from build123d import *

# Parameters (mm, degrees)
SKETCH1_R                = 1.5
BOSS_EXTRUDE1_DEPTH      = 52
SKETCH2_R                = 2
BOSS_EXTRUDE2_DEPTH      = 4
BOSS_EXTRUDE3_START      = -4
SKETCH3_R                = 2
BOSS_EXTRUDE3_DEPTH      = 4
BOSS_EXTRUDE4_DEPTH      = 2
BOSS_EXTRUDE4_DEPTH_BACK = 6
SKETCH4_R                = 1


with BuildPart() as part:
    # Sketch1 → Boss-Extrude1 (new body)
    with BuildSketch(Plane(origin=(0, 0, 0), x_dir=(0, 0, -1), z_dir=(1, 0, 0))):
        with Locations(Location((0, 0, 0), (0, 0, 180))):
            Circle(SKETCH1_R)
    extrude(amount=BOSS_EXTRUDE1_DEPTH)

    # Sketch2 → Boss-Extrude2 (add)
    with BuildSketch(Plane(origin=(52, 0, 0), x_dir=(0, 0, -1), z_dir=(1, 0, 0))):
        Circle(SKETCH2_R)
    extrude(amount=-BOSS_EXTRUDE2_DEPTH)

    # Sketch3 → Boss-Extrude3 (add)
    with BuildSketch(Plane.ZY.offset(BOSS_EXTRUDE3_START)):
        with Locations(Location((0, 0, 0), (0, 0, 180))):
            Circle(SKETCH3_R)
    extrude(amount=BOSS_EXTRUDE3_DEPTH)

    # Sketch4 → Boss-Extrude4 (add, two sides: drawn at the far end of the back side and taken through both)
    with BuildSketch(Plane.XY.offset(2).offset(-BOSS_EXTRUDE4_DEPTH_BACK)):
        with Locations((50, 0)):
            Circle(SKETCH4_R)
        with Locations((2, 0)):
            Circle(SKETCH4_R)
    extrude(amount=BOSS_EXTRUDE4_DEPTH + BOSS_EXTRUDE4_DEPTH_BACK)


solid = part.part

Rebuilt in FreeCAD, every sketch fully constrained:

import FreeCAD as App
import Part
import Sketcher
from FreeCAD import Vector
Q = App.Units.Quantity

doc = App.newDocument("Part")
body = doc.addObject("PartDesign::Body", "Body")

# Sketch on YZ plane
sketch1 = body.newObject("Sketcher::SketchObject", "Sketch")
sketch1.AttachmentSupport = (doc.getObject("YZ_Plane"), [""])
sketch1.MapMode = "FlatFace"
sketch1.addGeometry(Part.Circle(Vector(0, 0, 0), Vector(0, 0, 1), 1.5), False)
sketch1.addConstraint([
    Sketcher.Constraint("Coincident", 0, 3, -1, 1),
    Sketcher.Constraint("Diameter", 0, Q("3 mm")),
])
pad1 = body.newObject("PartDesign::Pad", "Pad")
pad1.Profile = sketch1
pad1.Length = 52

# Sketch on YZ plane
sketch2 = body.newObject("Sketcher::SketchObject", "Sketch001")
sketch2.AttachmentSupport = (doc.getObject("YZ_Plane"), [""])
sketch2.MapMode = "FlatFace"
sketch2.AttachmentOffset = App.Placement(Vector(0, 0, 52), App.Rotation())
sketch2.addGeometry(Part.Circle(Vector(0, 0, 0), Vector(0, 0, 1), 2), False)
sketch2.addConstraint([
    Sketcher.Constraint("Coincident", 0, 3, -1, 1),
    Sketcher.Constraint("Diameter", 0, Q("4 mm")),
])
pad2 = body.newObject("PartDesign::Pad", "Pad001")
pad2.Profile = sketch2
pad2.Length = 4
pad2.Reversed = True

# Sketch on YZ plane
sketch3 = body.newObject("Sketcher::SketchObject", "Sketch002")
sketch3.AttachmentSupport = (doc.getObject("YZ_Plane"), [""])
sketch3.MapMode = "FlatFace"
sketch3.AttachmentOffset = App.Placement(Vector(0, 0, 4), App.Rotation())
sketch3.addGeometry(Part.Circle(Vector(0, 0, 0), Vector(0, 0, 1), 2), False)
sketch3.addConstraint([
    Sketcher.Constraint("Coincident", 0, 3, -1, 1),
    Sketcher.Constraint("Diameter", 0, Q("4 mm")),
])
pad3 = body.newObject("PartDesign::Pad", "Pad002")
pad3.Profile = sketch3
pad3.Length = 4
pad3.Reversed = True

# Sketch on XY plane
sketch4 = body.newObject("Sketcher::SketchObject", "Sketch003")
sketch4.AttachmentSupport = (doc.getObject("XY_Plane"), [""])
sketch4.MapMode = "FlatFace"
sketch4.AttachmentOffset = App.Placement(Vector(0, 0, 2), App.Rotation())
sketch4.addGeometry([
    Part.Circle(Vector(50, 0, 0), Vector(0, 0, 1), 1),
    Part.Circle(Vector(2, 0, 0), Vector(0, 0, 1), 1),
], False)
sketch4.addConstraint([
    Sketcher.Constraint("Equal", 0, 1),
    Sketcher.Constraint("PointOnObject", 0, 3, -1),
    Sketcher.Constraint("PointOnObject", 1, 3, -1),
    Sketcher.Constraint("Diameter", 0, Q("2 mm")),
    Sketcher.Constraint("DistanceX", -1, 1, 0, 3, Q("50 mm")),
    Sketcher.Constraint("DistanceX", -1, 1, 1, 3, Q("2 mm")),
])
pad4 = body.newObject("PartDesign::Pad", "Pad003")
pad4.Profile = sketch4
pad4.Type = "TwoLengths"
pad4.Length = 2
pad4.Length2 = 6

doc.recompute()
